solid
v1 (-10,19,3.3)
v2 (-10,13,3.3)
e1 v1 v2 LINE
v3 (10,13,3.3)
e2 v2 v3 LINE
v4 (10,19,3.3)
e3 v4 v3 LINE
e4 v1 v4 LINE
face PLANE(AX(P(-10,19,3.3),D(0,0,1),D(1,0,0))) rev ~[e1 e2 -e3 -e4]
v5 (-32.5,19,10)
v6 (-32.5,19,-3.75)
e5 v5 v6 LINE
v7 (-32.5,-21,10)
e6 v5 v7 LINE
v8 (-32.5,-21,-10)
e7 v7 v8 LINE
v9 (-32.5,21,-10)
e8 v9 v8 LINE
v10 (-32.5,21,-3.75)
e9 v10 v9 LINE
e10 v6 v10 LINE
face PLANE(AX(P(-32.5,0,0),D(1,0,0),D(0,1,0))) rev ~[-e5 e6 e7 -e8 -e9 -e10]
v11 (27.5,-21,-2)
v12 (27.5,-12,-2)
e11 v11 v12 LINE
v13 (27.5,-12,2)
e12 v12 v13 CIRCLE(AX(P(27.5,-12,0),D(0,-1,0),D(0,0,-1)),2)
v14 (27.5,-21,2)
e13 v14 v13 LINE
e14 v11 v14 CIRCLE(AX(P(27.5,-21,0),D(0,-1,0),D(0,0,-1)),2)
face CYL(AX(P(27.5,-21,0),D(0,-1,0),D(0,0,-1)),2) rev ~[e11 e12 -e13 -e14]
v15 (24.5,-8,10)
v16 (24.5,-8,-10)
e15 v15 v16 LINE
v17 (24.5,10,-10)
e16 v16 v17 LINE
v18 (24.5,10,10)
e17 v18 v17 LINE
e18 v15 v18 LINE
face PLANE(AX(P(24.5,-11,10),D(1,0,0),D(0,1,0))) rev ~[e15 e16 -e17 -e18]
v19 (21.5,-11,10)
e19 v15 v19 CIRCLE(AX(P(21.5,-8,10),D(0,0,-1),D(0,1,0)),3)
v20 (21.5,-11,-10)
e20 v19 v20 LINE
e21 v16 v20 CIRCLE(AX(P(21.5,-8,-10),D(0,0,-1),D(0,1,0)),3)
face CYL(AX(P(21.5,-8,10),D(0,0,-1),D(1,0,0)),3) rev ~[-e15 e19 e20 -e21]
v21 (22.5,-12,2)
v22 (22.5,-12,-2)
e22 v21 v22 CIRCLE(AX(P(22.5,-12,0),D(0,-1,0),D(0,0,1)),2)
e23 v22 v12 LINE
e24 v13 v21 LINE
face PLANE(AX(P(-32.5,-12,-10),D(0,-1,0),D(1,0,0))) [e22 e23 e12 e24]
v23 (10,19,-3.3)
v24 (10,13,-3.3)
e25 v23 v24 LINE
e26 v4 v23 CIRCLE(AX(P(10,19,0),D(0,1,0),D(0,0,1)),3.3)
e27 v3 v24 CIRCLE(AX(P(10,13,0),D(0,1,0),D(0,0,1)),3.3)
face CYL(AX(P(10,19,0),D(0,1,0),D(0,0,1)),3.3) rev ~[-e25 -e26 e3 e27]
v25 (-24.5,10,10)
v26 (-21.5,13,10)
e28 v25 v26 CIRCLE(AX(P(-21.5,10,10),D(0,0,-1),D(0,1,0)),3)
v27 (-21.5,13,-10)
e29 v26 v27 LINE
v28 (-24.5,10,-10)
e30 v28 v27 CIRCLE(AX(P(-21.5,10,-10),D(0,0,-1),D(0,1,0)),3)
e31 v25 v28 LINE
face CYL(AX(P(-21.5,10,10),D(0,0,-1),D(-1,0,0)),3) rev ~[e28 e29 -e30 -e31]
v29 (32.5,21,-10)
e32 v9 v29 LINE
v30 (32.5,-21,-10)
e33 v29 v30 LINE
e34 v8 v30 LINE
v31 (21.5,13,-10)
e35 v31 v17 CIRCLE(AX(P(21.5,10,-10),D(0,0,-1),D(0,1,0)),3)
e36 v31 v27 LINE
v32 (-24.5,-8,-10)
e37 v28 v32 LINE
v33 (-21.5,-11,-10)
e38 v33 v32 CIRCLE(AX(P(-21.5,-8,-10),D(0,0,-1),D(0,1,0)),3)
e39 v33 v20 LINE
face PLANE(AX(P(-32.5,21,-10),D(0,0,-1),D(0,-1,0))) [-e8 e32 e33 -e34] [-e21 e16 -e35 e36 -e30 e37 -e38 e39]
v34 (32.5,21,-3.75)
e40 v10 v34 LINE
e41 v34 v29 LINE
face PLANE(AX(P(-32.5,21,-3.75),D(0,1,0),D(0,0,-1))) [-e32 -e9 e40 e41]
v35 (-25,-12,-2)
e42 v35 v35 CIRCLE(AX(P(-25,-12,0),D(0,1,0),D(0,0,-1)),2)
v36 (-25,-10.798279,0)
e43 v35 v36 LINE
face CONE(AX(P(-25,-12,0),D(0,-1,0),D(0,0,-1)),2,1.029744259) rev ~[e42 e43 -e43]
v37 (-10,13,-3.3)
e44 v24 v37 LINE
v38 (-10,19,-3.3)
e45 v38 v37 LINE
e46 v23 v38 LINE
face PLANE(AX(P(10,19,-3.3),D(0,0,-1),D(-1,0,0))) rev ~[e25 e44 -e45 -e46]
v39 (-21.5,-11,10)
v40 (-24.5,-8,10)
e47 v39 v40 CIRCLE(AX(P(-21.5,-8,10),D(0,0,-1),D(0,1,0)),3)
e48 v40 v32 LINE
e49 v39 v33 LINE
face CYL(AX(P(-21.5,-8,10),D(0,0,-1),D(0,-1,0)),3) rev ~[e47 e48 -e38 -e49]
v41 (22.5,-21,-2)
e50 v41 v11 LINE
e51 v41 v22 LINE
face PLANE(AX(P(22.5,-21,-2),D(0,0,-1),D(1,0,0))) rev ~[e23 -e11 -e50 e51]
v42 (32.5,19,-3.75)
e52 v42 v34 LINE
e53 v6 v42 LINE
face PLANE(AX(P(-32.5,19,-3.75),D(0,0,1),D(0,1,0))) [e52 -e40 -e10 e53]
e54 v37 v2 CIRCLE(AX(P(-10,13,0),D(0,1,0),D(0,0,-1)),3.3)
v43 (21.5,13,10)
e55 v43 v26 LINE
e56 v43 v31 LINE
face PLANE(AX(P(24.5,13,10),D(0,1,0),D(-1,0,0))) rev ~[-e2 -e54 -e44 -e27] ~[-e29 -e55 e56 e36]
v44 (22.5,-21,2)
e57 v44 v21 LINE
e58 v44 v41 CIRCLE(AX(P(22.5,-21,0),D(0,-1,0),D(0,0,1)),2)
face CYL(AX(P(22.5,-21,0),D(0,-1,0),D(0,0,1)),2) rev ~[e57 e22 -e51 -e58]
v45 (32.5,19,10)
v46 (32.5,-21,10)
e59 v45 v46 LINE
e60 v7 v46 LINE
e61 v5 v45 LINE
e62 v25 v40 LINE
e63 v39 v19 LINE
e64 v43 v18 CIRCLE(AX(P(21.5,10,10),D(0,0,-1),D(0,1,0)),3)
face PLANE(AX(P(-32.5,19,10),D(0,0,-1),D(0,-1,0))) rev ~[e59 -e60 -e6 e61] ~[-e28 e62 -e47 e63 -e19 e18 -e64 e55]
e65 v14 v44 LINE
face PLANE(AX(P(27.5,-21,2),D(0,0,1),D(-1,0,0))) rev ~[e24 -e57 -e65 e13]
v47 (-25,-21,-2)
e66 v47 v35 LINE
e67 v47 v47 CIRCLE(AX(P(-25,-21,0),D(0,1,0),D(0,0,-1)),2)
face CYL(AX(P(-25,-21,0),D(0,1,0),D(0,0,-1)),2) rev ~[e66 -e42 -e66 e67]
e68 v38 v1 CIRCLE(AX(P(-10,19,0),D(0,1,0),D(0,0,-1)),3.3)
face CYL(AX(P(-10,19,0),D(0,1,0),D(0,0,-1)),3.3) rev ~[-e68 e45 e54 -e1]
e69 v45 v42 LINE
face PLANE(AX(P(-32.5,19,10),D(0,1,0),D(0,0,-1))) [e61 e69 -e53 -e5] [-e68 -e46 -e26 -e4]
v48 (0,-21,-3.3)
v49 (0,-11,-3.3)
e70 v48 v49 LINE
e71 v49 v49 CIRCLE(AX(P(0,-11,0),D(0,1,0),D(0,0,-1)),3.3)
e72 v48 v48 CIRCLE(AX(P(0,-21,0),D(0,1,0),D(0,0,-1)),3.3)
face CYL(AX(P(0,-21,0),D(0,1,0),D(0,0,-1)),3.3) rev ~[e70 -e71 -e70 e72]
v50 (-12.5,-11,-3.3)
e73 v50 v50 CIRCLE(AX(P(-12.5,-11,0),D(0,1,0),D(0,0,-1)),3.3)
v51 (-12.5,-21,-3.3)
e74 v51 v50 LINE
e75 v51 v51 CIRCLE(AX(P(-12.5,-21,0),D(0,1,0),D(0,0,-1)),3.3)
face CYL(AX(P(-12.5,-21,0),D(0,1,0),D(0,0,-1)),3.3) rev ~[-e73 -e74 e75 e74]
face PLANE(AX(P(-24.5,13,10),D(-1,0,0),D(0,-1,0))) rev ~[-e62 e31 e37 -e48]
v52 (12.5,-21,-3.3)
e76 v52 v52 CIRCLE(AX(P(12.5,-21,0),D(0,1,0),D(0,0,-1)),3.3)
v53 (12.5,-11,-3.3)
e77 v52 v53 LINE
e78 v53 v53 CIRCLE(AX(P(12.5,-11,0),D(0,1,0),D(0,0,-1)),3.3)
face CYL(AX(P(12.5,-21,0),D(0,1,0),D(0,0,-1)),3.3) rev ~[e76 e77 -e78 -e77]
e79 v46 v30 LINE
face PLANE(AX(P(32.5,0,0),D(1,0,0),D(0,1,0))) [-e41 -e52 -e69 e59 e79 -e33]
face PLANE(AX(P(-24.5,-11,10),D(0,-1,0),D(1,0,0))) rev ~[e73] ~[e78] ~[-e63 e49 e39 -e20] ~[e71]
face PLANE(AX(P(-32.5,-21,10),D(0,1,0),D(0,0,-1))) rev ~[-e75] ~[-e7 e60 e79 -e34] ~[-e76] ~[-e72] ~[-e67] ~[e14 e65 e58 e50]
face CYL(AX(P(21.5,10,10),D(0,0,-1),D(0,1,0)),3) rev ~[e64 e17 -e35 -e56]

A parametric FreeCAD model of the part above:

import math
import FreeCAD as App
import Part
import Sketcher


def edges_at(feature, points):
    """Names of the edges that pass closest to the given points."""
    edges = feature.Shape.Edges
    near = lambda p: min(range(len(edges)), key=lambda i: edges[i].distToShape(Part.Vertex(*p))[0])
    return sorted({f"Edge{near(p) + 1}" for p in points})

doc = App.newDocument("Part")
params = doc.addObject("Spreadsheet::Sheet", "Params")
for row, (alias, value) in enumerate([
    ("sketch1_width", "40 mm"),
    ("sketch1_width2", "42 mm"),
    ("sketch1_height", "20 mm"),
    ("sketch1_height2", "6.25 mm"),
    ("pad1_length", "65 mm"),
    ("sketch2_width", "49 mm"),
    ("sketch2_height", "24 mm"),
    ("pocket1_length", "20 mm"),
    ("sketch3_radius", "3.3 mm"),
    ("sketch3_width", "20 mm"),
    ("pocket2_length", "6 mm"),
    ("fillet_radius", "3 mm"),
    ("fillet2_radius", "3 mm"),
    ("fillet3_radius", "3 mm"),
    ("fillet4_radius", "3 mm"),
    ("sketch4_diameter", "6.6 mm"),
    ("hole_diameter", "6.6 mm"),
    ("hole_depth", "10 mm"),
    ("sketch5_diameter", "4 mm"),
    ("hole2_diameter", "4 mm"),
    ("hole2_depth", "9 mm"),
    ("sketch6_radius", "2 mm"),
    ("sketch6_width", "5 mm"),
    ("pocket3_length", "9 mm"),
], start=1):
    params.set(f"A{row}", alias)
    params.set(f"B{row}", "=" + value)
    params.setAlias(f"B{row}", alias)

body = doc.addObject("PartDesign::Body", "Body")

sketch1 = body.newObject("Sketcher::SketchObject", "Sketch")
sketch1.AttachmentSupport = (doc.getObject("YZ_Plane"), [""])
sketch1.MapMode = "FlatFace"
sketch1.AttachmentOffset = App.Placement(App.Vector(0, 0, -32.5), App.Rotation())
sketch1.addGeometry(Part.LineSegment(App.Vector(19, 10, 0), App.Vector(-21, 10, 0)), False)
sketch1.addGeometry(Part.LineSegment(App.Vector(-21, 10, 0), App.Vector(-21, -10, 0)), False)
sketch1.addGeometry(Part.LineSegment(App.Vector(-21, -10, 0), App.Vector(21, -10, 0)), False)
sketch1.addGeometry(Part.LineSegment(App.Vector(21, -10, 0), App.Vector(21, -3.8, 0)), False)
sketch1.addGeometry(Part.LineSegment(App.Vector(21, -3.8, 0), App.Vector(19, -3.8, 0)), False)
sketch1.addGeometry(Part.LineSegment(App.Vector(19, -3.8, 0), App.Vector(19, 10, 0)), False)
sketch1.addConstraint(Sketcher.Constraint("Coincident", 0, 2, 1, 1))
sketch1.addConstraint(Sketcher.Constraint("Coincident", 1, 2, 2, 1))
sketch1.addConstraint(Sketcher.Constraint("Coincident", 2, 2, 3, 1))
sketch1.addConstraint(Sketcher.Constraint("Coincident", 3, 2, 4, 1))
sketch1.addConstraint(Sketcher.Constraint("Coincident", 4, 2, 5, 1))
sketch1.addConstraint(Sketcher.Constraint("Coincident", 5, 2, 0, 1))
sketch1.addConstraint(Sketcher.Constraint("Horizontal", 0))
sketch1.addConstraint(Sketcher.Constraint("Vertical", 1))
sketch1.addConstraint(Sketcher.Constraint("Horizontal", 2))
sketch1.addConstraint(Sketcher.Constraint("Vertical", 3))
sketch1.addConstraint(Sketcher.Constraint("Horizontal", 4))
sketch1.addConstraint(Sketcher.Constraint("Vertical", 5))
sketch1.addConstraint(Sketcher.Constraint("Symmetric", 0, 2, 2, 2, -1, 1))
sketch1.addConstraint(Sketcher.Constraint("DistanceX", 0, 2, 0, 1, 40.0))
sketch1.addConstraint(Sketcher.Constraint("DistanceX", 2, 1, 2, 2, 42.0))
sketch1.addConstraint(Sketcher.Constraint("DistanceY", 1, 2, 1, 1, 20.0))
sketch1.addConstraint(Sketcher.Constraint("DistanceY", 3, 1, 3, 2, 6.25))
sketch1.setExpression("Constraints[13]", "Params.sketch1_width")
sketch1.setExpression("Constraints[14]", "Params.sketch1_width2")
sketch1.setExpression("Constraints[15]", "Params.sketch1_height")
sketch1.setExpression("Constraints[16]", "Params.sketch1_height2")
pad1 = body.newObject("PartDesign::Pad", "Pad")
pad1.Profile = sketch1
pad1.setExpression("Length", "Params.pad1_length")

sketch2 = body.newObject("Sketcher::SketchObject", "Sketch001")
sketch2.AttachmentSupport = (doc.getObject("XY_Plane"), [""])
sketch2.MapMode = "FlatFace"
sketch2.AttachmentOffset = App.Placement(App.Vector(0, 0, 10), App.Rotation())
sketch2.addGeometry(Part.LineSegment(App.Vector(-24, -11, 0), App.Vector(24, -11, 0)), False)
sketch2.addGeometry(Part.LineSegment(App.Vector(24, -11, 0), App.Vector(24, 13, 0)), False)
sketch2.addGeometry(Part.LineSegment(App.Vector(24, 13, 0), App.Vector(-24, 13, 0)), False)
sketch2.addGeometry(Part.LineSegment(App.Vector(-24, 13, 0), App.Vector(-24, -11, 0)), False)
sketch2.addConstraint(Sketcher.Constraint("Coincident", 0, 2, 1, 1))
sketch2.addConstraint(Sketcher.Constraint("Coincident", 1, 2, 2, 1))
sketch2.addConstraint(Sketcher.Constraint("Coincident", 2, 2, 3, 1))
sketch2.addConstraint(Sketcher.Constraint("Coincident", 3, 2, 0, 1))
sketch2.addConstraint(Sketcher.Constraint("Horizontal", 0))
sketch2.addConstraint(Sketcher.Constraint("Vertical", 1))
sketch2.addConstraint(Sketcher.Constraint("Horizontal", 2))
sketch2.addConstraint(Sketcher.Constraint("Vertical", 3))
sketch2.addConstraint(Sketcher.Constraint("DistanceX", 0, 1, 0, 2, 49.0))
sketch2.addConstraint(Sketcher.Constraint("DistanceY", 1, 1, 1, 2, 24.0))
sketch2.addConstraint(Sketcher.Constraint("DistanceY", 0, 2, -1, 1, 11.0))
sketch2.addConstraint(Sketcher.Constraint("DistanceX", -1, 1, 0, 2, 24.5))
sketch2.setExpression("Constraints[8]", "Params.sketch2_width")
sketch2.setExpression("Constraints[9]", "Params.sketch2_height")
pocket1 = body.newObject("PartDesign::Pocket", "Pocket")
pocket1.Profile = sketch2
pocket1.setExpression("Length", "Params.pocket1_length")

sketch3 = body.newObject("Sketcher::SketchObject", "Sketch002")
sketch3.AttachmentSupport = (doc.getObject("XZ_Plane"), [""])
sketch3.MapMode = "FlatFace"
sketch3.AttachmentOffset = App.Placement(App.Vector(0, 0, -19), App.Rotation())
sketch3.addGeometry(Part.ArcOfCircle(Part.Circle(App.Vector(10, 0, 0), App.Vector(0, 0, 1), 3.3), math.radians(-90), math.radians(90)), False)
sketch3.addGeometry(Part.LineSegment(App.Vector(10, -3.3, 0), App.Vector(-10, -3.3, 0)), False)
sketch3.addGeometry(Part.ArcOfCircle(Part.Circle(App.Vector(-10, 0, 0), App.Vector(0, 0, 1), 3.3), math.radians(90), math.radians(270)), False)
sketch3.addGeometry(Part.LineSegment(App.Vector(-10, 3.3, 0), App.Vector(10, 3.3, 0)), False)
sketch3.addConstraint(Sketcher.Constraint("Tangent", 0, 1, 1, 1))
sketch3.addConstraint(Sketcher.Constraint("Tangent", 1, 2, 2, 2))
sketch3.addConstraint(Sketcher.Constraint("Tangent", 2, 1, 3, 1))
sketch3.addConstraint(Sketcher.Constraint("Tangent", 3, 2, 0, 2))
sketch3.addConstraint(Sketcher.Constraint("Horizontal", 1))
sketch3.addConstraint(Sketcher.Constraint("Horizontal", 3))
sketch3.addConstraint(Sketcher.Constraint("Symmetric", 0, 3, 2, 3, -1, 1))
sketch3.addConstraint(Sketcher.Constraint("Radius", 0, 3.3))
sketch3.addConstraint(Sketcher.Constraint("DistanceX", 1, 2, 1, 1, 20.0))
sketch3.setExpression("Constraints[7]", "Params.sketch3_radius")
sketch3.setExpression("Constraints[8]", "Params.sketch3_width")
pocket2 = body.newObject("PartDesign::Pocket", "Pocket001")
pocket2.Profile = sketch3
pocket2.setExpression("Length", "Params.pocket2_length")
pocket2.Reversed = True
doc.recompute()

fillet = body.newObject("PartDesign::Fillet", "Fillet")
fillet.Base = (pocket2, edges_at(pocket2, [(24.5, 13, 0)]))
fillet.setExpression("Radius", "Params.fillet_radius")
doc.recompute()

fillet2 = body.newObject("PartDesign::Fillet", "Fillet001")
fillet2.Base = (fillet, edges_at(fillet, [(24.5, -11, 0)]))
fillet2.setExpression("Radius", "Params.fillet2_radius")
doc.recompute()

fillet3 = body.newObject("PartDesign::Fillet", "Fillet002")
fillet3.Base = (fillet2, edges_at(fillet2, [(-24.5, -11, 0)]))
fillet3.setExpression("Radius", "Params.fillet3_radius")
doc.recompute()

fillet4 = body.newObject("PartDesign::Fillet", "Fillet003")
fillet4.Base = (fillet3, edges_at(fillet3, [(-24.5, 13, 0)]))
fillet4.setExpression("Radius", "Params.fillet4_radius")

sketch4 = body.newObject("Sketcher::SketchObject", "Sketch003")
sketch4.AttachmentSupport = (doc.getObject("XZ_Plane"), [""])
sketch4.MapMode = "FlatFace"
sketch4.AttachmentOffset = App.Placement(App.Vector(0, 0, 21), App.Rotation())
sketch4.addGeometry(Part.Circle(App.Vector(0, 0, 0), App.Vector(0, 0, 1), 3.3), False)
sketch4.addGeometry(Part.Circle(App.Vector(-12.5, 0, 0), App.Vector(0, 0, 1), 3.3), False)
sketch4.addGeometry(Part.Circle(App.Vector(12.5, 0, 0), App.Vector(0, 0, 1), 3.3), False)
sketch4.addConstraint(Sketcher.Constraint("Coincident", 0, 3, -1, 1))
sketch4.addConstraint(Sketcher.Constraint("Equal", 0, 1))
sketch4.addConstraint(Sketcher.Constraint("Equal", 1, 2))
sketch4.addConstraint(Sketcher.Constraint("Symmetric", 1, 3, 2, 3, -1, 1))
sketch4.addConstraint(Sketcher.Constraint("PointOnObject", 1, 3, -1))
sketch4.addConstraint(Sketcher.Constraint("Diameter", 0, 6.6))
sketch4.addConstraint(Sketcher.Constraint("DistanceX", 1, 3, 2, 3, 25.0))
sketch4.setExpression("Constraints[5]", "Params.sketch4_diameter")
doc.recompute()
hole = body.newObject("PartDesign::Hole", "Hole")
hole.Profile = sketch4
hole.ThreadType = "None"
hole.setExpression("Diameter", "Params.hole_diameter")
hole.DepthType = "Dimension"
hole.setExpression("Depth", "Params.hole_depth")
hole.DrillPoint = "Flat"

sketch5 = body.newObject("Sketcher::SketchObject", "Sketch004")
sketch5.AttachmentSupport = (doc.getObject("XZ_Plane"), [""])
sketch5.MapMode = "FlatFace"
sketch5.AttachmentOffset = App.Placement(App.Vector(0, 0, 21), App.Rotation())
sketch5.addGeometry(Part.Circle(App.Vector(-25, 0, 0), App.Vector(0, 0, 1), 2), False)
sketch5.addConstraint(Sketcher.Constraint("PointOnObject", 0, 3, -1))
sketch5.addConstraint(Sketcher.Constraint("Diameter", 0, 4.0))
sketch5.addConstraint(Sketcher.Constraint("DistanceX", 0, 3, -1, 1, 25.0))
sketch5.setExpression("Constraints[1]", "Params.sketch5_diameter")
doc.recompute()
hole2 = body.newObject("PartDesign::Hole", "Hole001")
hole2.Profile = sketch5
hole2.ThreadType = "None"
hole2.setExpression("Diameter", "Params.hole2_diameter")
hole2.DepthType = "Dimension"
hole2.setExpression("Depth", "Params.hole2_depth")
hole2.DrillPoint = "Angled"
hole2.DrillPointAngle = 118

sketch6 = body.newObject("Sketcher::SketchObject", "Sketch005")
sketch6.AttachmentSupport = (doc.getObject("XZ_Plane"), [""])
sketch6.MapMode = "FlatFace"
sketch6.AttachmentOffset = App.Placement(App.Vector(0, 0, 21), App.Rotation())
sketch6.addGeometry(Part.LineSegment(App.Vector(22.5, -2, 0), App.Vector(27.5, -2, 0)), False)
sketch6.addGeometry(Part.ArcOfCircle(Part.Circle(App.Vector(27.5, 0, 0), App.Vector(0, 0, 1), 2), math.radians(-90), math.radians(90)), False)
sketch6.addGeometry(Part.LineSegment(App.Vector(27.5, 2, 0), App.Vector(22.5, 2, 0)), False)
sketch6.addGeometry(Part.ArcOfCircle(Part.Circle(App.Vector(22.5, 0, 0), App.Vector(0, 0, 1), 2), math.radians(90), math.radians(270)), False)
sketch6.addConstraint(Sketcher.Constraint("Tangent", 0, 2, 1, 1))
sketch6.addConstraint(Sketcher.Constraint("Tangent", 1, 2, 2, 1))
sketch6.addConstraint(Sketcher.Constraint("Tangent", 2, 2, 3, 1))
sketch6.addConstraint(Sketcher.Constraint("Tangent", 3, 2, 0, 1))
sketch6.addConstraint(Sketcher.Constraint("Horizontal", 0))
sketch6.addConstraint(Sketcher.Constraint("Horizontal", 2))
sketch6.addConstraint(Sketcher.Constraint("PointOnObject", 1, 3, -1))
sketch6.addConstraint(Sketcher.Constraint("Radius", 1, 2.0))
sketch6.addConstraint(Sketcher.Constraint("DistanceX", 0, 1, 0, 2, 5.0))
sketch6.addConstraint(Sketcher.Constraint("DistanceX", -1, 1, 1, 3, 27.5))
sketch6.setExpression("Constraints[7]", "Params.sketch6_radius")
sketch6.setExpression("Constraints[8]", "Params.sketch6_width")
pocket3 = body.newObject("PartDesign::Pocket", "Pocket002")
pocket3.Profile = sketch6
pocket3.setExpression("Length", "Params.pocket3_length")

doc.recompute()
